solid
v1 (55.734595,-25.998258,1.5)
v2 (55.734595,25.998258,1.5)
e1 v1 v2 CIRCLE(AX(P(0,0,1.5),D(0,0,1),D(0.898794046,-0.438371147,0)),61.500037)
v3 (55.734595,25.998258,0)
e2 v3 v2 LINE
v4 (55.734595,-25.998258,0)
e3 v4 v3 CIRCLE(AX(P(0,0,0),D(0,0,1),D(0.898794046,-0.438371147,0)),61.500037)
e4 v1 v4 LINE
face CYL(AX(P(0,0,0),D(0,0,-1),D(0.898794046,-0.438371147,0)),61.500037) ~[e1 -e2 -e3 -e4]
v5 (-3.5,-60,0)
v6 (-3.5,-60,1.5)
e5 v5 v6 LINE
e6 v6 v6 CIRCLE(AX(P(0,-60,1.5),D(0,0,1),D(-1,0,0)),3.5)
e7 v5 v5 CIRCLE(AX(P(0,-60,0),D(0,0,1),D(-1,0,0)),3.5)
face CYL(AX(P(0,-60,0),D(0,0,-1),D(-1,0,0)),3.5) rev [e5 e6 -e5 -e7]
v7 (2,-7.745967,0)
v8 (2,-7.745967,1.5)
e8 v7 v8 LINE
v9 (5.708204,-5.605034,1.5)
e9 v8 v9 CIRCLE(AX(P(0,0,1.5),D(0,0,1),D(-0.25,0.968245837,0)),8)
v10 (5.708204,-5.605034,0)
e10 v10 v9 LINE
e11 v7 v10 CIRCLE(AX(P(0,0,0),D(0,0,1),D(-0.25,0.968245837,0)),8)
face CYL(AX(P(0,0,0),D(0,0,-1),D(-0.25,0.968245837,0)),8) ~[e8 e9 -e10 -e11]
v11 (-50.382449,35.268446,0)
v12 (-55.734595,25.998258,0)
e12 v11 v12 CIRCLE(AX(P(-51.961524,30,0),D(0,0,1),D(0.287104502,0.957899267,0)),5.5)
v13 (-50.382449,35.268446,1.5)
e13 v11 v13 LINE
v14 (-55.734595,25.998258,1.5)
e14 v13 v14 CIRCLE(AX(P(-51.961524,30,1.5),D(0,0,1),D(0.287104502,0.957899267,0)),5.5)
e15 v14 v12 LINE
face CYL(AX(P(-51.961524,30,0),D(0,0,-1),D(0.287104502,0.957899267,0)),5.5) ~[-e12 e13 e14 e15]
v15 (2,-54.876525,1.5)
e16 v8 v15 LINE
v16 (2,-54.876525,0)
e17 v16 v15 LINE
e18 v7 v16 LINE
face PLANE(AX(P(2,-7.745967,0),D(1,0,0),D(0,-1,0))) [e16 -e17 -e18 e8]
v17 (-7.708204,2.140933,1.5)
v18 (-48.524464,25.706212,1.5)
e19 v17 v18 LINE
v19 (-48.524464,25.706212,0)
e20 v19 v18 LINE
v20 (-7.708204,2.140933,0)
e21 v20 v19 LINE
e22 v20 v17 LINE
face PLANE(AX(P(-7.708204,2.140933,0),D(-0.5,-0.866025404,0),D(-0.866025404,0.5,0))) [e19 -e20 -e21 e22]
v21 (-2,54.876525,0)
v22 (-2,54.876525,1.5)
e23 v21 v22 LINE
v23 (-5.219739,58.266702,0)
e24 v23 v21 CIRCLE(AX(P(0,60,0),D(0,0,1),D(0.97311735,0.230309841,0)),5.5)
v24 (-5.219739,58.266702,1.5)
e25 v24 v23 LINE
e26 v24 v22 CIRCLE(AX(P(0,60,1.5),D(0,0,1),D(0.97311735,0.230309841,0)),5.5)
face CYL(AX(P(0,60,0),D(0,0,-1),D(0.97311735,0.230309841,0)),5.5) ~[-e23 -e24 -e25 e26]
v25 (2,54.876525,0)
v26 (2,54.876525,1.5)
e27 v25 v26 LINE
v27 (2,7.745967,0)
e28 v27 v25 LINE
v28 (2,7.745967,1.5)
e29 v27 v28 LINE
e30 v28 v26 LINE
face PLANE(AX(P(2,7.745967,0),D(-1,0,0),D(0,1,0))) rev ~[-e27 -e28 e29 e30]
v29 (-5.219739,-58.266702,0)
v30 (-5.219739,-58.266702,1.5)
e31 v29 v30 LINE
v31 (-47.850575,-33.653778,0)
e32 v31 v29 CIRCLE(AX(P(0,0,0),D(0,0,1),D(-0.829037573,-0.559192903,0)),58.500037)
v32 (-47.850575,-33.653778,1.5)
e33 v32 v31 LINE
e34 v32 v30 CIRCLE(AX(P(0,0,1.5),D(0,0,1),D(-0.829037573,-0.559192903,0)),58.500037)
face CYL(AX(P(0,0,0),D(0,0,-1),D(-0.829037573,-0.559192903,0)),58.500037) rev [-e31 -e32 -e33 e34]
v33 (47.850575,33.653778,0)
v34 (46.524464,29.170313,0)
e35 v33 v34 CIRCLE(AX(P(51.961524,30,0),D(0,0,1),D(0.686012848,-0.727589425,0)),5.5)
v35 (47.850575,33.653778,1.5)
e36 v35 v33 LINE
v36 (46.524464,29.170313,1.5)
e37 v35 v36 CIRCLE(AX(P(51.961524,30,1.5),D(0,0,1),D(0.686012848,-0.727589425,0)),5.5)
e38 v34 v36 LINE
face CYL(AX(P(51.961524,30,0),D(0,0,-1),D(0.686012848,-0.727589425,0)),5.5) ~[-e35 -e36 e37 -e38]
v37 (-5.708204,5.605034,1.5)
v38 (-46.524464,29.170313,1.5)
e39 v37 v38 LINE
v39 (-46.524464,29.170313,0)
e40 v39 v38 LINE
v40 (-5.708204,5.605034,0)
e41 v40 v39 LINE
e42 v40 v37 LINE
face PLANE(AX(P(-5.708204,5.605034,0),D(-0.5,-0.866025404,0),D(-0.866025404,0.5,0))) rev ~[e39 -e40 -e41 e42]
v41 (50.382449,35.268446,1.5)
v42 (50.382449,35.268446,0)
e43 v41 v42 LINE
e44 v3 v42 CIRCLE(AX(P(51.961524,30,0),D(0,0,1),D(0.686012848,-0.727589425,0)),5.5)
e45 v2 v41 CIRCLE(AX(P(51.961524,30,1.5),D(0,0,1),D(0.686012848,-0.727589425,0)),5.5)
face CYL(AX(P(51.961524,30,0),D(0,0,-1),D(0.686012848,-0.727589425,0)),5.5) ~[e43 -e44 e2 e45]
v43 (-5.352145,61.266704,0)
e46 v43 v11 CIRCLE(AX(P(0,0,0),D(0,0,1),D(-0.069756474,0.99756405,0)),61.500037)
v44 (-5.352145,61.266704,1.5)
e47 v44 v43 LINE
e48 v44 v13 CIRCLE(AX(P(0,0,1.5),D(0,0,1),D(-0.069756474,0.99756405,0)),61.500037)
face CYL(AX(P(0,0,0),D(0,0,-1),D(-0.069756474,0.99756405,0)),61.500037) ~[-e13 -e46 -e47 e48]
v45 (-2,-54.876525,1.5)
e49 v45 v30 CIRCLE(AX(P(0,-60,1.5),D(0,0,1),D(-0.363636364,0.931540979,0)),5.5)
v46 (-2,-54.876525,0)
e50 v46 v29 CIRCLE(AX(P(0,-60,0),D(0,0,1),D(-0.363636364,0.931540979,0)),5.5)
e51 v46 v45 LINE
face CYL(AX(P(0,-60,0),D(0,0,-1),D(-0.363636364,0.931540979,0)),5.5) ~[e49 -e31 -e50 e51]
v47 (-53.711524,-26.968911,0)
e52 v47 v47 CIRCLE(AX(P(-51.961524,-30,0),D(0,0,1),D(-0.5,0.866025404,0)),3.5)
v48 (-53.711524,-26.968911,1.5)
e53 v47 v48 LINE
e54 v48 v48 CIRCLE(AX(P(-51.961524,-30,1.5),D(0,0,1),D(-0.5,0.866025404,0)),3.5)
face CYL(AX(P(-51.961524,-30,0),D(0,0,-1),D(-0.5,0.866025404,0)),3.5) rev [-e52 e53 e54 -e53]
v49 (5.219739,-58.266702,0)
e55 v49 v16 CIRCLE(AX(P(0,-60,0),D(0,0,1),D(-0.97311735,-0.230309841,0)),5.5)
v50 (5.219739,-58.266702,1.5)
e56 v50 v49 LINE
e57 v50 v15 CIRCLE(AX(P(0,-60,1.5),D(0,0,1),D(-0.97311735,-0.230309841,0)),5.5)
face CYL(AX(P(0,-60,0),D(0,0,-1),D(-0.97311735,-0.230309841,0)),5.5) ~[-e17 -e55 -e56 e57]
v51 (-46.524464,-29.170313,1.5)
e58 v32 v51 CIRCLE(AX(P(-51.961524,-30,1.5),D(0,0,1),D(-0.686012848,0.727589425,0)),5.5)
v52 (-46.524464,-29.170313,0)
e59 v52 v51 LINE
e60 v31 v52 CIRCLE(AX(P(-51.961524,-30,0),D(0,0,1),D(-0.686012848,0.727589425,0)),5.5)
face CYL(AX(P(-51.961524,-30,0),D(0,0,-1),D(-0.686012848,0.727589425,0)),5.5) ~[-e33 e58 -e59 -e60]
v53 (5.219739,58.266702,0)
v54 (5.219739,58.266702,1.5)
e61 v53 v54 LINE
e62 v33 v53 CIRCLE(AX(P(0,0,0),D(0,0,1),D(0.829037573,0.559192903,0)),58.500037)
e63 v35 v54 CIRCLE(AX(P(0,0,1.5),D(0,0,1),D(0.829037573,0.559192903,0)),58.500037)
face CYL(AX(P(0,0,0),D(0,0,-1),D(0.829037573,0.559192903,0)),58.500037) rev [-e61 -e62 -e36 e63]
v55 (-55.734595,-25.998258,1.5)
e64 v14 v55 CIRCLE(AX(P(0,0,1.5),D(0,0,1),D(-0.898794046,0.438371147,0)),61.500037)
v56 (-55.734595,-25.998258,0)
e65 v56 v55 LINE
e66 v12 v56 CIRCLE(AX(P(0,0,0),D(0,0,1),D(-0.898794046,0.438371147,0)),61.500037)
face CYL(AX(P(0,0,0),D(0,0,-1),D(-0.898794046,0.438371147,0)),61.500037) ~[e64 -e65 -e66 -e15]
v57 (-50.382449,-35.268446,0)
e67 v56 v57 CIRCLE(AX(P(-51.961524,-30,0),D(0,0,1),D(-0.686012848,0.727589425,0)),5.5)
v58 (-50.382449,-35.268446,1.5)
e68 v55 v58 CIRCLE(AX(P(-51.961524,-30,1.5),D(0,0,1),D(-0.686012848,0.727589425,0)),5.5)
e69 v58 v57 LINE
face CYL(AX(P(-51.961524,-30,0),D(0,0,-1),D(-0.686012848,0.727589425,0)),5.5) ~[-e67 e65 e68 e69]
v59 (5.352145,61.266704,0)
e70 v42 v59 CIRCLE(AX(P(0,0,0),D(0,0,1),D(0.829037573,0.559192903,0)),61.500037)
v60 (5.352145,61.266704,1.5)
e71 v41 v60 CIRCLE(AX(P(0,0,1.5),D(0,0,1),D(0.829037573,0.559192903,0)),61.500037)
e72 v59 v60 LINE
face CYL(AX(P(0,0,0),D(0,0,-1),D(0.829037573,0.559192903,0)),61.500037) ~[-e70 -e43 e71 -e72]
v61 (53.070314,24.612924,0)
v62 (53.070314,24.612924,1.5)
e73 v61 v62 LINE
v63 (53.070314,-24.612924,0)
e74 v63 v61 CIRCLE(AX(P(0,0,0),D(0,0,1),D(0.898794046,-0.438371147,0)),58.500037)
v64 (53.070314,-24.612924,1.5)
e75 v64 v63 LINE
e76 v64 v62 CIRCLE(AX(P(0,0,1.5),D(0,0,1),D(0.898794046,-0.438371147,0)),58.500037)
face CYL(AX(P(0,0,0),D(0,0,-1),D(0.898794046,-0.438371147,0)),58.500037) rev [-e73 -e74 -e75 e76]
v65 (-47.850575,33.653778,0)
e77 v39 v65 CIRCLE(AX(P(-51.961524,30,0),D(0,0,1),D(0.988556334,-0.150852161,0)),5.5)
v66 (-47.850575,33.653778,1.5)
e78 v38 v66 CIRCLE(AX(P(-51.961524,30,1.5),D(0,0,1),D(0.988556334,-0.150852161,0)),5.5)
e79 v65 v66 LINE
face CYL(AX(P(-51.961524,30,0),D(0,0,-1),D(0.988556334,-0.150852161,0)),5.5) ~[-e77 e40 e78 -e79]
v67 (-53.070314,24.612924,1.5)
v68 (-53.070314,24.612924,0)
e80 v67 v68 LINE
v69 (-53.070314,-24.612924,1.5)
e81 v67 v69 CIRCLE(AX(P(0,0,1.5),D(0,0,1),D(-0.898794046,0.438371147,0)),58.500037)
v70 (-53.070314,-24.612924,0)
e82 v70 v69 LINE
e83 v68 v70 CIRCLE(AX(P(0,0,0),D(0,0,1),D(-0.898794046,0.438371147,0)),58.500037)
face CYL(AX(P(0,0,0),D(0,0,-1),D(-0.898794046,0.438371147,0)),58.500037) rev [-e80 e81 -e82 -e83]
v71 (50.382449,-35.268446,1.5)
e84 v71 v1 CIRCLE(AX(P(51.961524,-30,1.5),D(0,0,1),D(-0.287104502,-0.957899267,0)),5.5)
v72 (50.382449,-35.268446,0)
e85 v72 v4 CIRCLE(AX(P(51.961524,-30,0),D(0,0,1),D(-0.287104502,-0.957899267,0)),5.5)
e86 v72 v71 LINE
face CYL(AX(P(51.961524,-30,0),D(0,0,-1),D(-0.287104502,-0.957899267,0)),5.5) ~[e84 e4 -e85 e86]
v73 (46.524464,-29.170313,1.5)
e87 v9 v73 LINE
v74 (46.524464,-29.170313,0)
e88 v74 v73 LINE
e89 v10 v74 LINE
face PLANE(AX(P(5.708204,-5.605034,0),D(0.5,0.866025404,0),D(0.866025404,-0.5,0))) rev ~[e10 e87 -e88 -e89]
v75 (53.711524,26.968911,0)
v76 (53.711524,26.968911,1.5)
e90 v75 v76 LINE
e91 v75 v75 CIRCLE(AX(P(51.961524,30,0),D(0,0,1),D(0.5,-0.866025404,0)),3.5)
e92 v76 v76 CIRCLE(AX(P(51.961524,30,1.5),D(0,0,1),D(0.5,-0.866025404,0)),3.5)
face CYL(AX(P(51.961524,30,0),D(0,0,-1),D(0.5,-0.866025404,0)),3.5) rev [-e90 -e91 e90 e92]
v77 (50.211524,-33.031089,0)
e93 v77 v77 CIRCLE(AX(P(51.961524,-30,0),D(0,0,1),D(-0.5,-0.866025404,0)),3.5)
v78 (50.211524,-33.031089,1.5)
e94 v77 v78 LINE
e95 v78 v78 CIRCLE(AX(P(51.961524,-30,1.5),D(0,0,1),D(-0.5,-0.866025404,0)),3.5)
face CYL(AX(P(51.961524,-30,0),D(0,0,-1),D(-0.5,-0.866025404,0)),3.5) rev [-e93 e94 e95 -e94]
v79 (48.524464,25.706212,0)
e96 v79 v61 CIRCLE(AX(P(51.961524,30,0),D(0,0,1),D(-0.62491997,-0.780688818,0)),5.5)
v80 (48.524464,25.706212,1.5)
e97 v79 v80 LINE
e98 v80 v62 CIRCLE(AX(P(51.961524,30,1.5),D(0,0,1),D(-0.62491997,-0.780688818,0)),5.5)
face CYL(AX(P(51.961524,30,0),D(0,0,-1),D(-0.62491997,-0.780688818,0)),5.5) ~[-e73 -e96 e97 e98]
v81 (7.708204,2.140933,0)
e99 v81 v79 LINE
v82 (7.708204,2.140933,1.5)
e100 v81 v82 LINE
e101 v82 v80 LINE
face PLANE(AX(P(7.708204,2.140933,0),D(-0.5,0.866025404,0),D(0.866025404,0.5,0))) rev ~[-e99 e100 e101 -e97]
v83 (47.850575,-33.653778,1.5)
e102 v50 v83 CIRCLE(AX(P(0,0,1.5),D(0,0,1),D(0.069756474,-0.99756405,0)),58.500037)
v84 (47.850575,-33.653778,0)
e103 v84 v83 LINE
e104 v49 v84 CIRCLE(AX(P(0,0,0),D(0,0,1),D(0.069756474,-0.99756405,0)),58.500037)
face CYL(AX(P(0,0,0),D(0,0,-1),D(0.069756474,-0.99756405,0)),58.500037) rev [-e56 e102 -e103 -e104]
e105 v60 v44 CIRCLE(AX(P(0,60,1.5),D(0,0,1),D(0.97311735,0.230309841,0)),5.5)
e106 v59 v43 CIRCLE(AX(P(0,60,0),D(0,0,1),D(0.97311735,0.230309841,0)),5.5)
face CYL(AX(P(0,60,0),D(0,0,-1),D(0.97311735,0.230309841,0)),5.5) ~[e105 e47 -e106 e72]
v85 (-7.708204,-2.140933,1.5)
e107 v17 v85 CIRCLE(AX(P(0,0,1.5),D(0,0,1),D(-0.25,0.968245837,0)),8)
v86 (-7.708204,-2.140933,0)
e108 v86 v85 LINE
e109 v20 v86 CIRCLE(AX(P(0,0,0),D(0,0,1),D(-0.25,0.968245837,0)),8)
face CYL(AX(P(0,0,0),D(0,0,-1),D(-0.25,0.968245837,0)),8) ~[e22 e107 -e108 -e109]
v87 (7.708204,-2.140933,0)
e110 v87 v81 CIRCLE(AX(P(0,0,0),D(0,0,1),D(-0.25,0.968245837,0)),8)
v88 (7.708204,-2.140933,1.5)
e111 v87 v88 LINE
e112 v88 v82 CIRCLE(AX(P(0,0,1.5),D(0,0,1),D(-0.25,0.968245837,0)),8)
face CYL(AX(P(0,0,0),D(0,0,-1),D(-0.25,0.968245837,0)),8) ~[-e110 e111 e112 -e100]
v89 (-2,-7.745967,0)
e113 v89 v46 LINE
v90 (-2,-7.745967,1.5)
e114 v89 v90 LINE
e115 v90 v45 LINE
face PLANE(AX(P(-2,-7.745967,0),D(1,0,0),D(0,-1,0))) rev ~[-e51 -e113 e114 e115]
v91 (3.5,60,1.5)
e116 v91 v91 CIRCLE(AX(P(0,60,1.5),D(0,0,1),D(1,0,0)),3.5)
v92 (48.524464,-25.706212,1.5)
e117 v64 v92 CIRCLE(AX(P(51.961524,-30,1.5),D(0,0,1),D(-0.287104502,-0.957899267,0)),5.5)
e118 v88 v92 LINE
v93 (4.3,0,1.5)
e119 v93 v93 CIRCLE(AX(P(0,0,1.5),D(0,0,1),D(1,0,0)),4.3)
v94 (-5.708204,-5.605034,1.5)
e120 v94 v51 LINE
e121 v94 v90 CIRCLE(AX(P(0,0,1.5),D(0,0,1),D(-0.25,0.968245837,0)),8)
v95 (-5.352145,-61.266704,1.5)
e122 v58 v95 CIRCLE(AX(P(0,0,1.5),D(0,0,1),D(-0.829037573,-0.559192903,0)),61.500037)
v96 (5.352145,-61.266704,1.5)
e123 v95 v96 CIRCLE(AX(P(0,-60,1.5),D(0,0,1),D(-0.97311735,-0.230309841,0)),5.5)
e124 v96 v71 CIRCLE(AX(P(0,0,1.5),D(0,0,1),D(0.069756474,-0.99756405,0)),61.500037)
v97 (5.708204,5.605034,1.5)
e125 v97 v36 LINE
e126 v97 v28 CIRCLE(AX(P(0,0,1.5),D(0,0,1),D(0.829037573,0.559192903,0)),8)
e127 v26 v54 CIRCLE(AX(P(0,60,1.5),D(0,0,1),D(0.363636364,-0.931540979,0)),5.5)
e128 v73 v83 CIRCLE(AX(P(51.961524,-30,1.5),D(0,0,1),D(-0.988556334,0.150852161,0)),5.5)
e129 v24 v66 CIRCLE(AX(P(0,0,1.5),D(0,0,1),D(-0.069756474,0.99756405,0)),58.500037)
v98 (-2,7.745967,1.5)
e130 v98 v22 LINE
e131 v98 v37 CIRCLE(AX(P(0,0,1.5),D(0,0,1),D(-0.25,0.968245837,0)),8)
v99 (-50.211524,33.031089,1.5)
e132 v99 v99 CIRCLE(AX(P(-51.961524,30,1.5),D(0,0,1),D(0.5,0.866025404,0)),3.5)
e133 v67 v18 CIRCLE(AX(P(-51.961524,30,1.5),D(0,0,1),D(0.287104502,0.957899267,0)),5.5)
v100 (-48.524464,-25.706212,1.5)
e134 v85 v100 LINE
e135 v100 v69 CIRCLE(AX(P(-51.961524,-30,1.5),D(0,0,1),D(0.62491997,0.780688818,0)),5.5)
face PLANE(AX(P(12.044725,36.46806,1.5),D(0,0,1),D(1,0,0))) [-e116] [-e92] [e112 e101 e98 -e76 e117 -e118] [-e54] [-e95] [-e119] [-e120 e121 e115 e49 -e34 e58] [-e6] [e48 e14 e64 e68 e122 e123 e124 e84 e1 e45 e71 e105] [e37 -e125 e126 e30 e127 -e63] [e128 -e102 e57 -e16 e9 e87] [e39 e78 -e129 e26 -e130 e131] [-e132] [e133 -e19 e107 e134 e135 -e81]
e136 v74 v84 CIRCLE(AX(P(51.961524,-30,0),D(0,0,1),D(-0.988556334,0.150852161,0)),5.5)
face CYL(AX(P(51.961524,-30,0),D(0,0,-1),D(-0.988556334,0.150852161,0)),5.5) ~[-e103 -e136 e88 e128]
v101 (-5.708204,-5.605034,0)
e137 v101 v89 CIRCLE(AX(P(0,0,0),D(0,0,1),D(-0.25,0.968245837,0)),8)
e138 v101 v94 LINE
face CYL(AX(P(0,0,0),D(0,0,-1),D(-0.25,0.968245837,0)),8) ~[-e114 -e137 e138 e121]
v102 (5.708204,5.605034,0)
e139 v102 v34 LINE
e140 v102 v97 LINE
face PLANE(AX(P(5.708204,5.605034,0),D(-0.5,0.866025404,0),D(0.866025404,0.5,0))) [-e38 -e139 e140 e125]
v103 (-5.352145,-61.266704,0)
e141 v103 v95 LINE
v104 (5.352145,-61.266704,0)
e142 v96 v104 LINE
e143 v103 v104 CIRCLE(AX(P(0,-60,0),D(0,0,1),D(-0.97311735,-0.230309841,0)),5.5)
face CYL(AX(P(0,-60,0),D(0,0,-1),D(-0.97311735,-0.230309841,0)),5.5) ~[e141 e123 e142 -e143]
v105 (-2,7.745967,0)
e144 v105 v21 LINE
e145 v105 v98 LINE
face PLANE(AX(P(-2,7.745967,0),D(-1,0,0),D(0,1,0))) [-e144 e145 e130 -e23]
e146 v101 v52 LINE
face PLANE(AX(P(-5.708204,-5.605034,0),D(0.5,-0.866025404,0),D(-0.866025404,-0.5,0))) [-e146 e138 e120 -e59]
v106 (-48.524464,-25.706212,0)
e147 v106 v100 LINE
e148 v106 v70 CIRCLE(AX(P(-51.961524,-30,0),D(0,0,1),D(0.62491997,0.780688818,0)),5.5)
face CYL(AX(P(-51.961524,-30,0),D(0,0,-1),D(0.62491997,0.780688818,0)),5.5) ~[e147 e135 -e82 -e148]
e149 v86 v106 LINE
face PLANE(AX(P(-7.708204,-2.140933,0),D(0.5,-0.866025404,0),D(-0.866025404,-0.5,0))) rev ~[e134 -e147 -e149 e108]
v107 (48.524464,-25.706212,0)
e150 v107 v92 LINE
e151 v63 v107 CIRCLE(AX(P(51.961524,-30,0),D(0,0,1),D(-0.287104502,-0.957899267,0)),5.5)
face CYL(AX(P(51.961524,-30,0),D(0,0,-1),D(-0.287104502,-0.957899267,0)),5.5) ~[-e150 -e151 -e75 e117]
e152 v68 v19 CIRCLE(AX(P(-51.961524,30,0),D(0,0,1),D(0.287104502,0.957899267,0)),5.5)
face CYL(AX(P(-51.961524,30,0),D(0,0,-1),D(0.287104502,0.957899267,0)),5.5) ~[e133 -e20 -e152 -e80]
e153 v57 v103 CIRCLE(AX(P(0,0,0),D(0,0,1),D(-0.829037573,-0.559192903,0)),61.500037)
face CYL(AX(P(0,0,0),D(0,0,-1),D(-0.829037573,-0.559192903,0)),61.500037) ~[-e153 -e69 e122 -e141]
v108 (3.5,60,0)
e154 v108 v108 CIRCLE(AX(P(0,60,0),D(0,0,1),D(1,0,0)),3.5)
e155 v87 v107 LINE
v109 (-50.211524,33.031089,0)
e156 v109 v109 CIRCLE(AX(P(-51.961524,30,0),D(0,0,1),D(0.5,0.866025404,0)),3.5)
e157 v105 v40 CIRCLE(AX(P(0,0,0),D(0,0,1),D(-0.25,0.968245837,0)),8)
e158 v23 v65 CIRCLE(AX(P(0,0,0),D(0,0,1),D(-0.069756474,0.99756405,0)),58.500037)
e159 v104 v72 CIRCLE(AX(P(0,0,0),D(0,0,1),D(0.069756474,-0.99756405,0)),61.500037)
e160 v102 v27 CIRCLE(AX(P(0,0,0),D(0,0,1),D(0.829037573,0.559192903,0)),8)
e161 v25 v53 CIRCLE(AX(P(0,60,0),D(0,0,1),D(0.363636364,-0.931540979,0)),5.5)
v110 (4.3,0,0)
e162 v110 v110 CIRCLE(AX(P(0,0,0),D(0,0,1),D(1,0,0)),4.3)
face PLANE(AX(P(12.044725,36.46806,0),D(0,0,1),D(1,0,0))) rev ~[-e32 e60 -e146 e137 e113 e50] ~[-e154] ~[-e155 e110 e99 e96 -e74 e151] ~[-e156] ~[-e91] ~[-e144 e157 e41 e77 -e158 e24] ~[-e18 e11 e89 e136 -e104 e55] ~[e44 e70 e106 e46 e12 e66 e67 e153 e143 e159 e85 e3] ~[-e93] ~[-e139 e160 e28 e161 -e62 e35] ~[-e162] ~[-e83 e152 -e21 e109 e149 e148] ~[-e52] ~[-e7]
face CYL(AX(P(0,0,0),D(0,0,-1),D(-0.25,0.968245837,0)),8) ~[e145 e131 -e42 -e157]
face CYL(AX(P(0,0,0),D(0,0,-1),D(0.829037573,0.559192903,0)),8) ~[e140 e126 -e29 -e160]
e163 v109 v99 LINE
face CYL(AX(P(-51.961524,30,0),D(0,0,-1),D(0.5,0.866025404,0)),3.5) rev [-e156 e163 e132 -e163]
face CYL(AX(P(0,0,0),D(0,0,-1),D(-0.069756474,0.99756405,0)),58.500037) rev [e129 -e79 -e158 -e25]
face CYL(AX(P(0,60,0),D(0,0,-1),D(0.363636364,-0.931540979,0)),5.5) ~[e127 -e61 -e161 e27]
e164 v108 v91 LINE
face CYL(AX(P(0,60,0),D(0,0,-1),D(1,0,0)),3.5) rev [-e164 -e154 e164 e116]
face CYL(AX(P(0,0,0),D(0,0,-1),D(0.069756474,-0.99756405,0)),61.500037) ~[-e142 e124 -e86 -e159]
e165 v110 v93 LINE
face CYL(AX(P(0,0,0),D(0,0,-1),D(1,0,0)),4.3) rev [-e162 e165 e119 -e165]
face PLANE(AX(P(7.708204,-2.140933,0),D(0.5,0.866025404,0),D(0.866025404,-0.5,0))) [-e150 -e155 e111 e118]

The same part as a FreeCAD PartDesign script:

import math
import FreeCAD as App
import Part
import Sketcher
from FreeCAD import Vector
Q = App.Units.Quantity

doc = App.newDocument("Part")
params = doc.addObject("Spreadsheet::Sheet", "Params")
for row, (alias, value) in enumerate([
    ("sketch1_diameter", "7 mm"),
    ("sketch1_radius", "8 mm"),
    ("sketch1_diameter2", "8.6 mm"),
    ("sketch1_radius2", "5.5 mm"),
    ("sketch1_length", "3 mm"),
    ("pad1_length", "1.5 mm"),
], start=1):
    params.set(f"A{row}", alias)
    params.set(f"B{row}", "=" + value)
    params.setAlias(f"B{row}", alias)

body = doc.addObject("PartDesign::Body", "Body")

sketch1 = body.newObject("Sketcher::SketchObject", "Sketch")
sketch1.AttachmentSupport = (doc.getObject("XY_Plane"), [""])
sketch1.MapMode = "FlatFace"
sketch1.addGeometry(Part.ArcOfCircle(Part.Circle(Vector(0, 0, 0), Vector(0, 0, 1), 8), math.radians(34), math.radians(75.522488)), False)
sketch1.addGeometry(Part.LineSegment(Vector(2, 7.745967, 0), Vector(2, 54.876525, 0)), False)
sketch1.addGeometry(Part.ArcOfCircle(Part.Circle(Vector(0, 60, 0), Vector(0, 0, 1), 5.5), math.radians(-68.676314), math.radians(-18.36957)), False)
sketch1.addGeometry(Part.ArcOfCircle(Part.Circle(Vector(0, 0, 0), Vector(0, 0, 1), 58.500037), math.radians(34), math.radians(84.880904)), False)
sketch1.addGeometry(Part.LineSegment(Vector(48.498728, 32.712805, 0), Vector(50.985841, 34.390384, 0)), False)
sketch1.addGeometry(Part.ArcOfCircle(Part.Circle(Vector(0, 0, 0), Vector(0, 0, 1), 61.500037), math.radians(34), math.radians(85.007422)), False)
sketch1.addGeometry(Part.ArcOfCircle(Part.Circle(Vector(0, 60, 0), Vector(0, 0, 1), 5.5), math.radians(13.315314), math.radians(248.676314)), False)
sketch1.addGeometry(Part.LineSegment(Vector(-2, 54.876525, 0), Vector(-2, 7.745967, 0)), False)
sketch1.addGeometry(Part.ArcOfCircle(Part.Circle(Vector(0, 0, 0), Vector(0, 0, 1), 8), math.radians(104.477512), math.radians(394)), False)
sketch1.addGeometry(Part.Circle(Vector(0, 0, 0), Vector(0, 0, 1), 4.3), False)
sketch1.addGeometry(Part.Circle(Vector(0, 60, 0), Vector(0, 0, 1), 3.5), False)
sketch1.addConstraint(Sketcher.Constraint("Coincident", 0, 2, 1, 1))
sketch1.addConstraint(Sketcher.Constraint("Coincident", 1, 2, 2, 1))
sketch1.addConstraint(Sketcher.Constraint("Coincident", 2, 2, 3, 2))
sketch1.addConstraint(Sketcher.Constraint("Coincident", 3, 1, 4, 1))
sketch1.addConstraint(Sketcher.Constraint("Coincident", 4, 2, 5, 1))
sketch1.addConstraint(Sketcher.Constraint("Coincident", 5, 2, 6, 1))
sketch1.addConstraint(Sketcher.Constraint("Coincident", 6, 2, 7, 1))
sketch1.addConstraint(Sketcher.Constraint("Coincident", 7, 2, 8, 1))
sketch1.addConstraint(Sketcher.Constraint("Tangent", 8, 2, 0, 1))
sketch1.addConstraint(Sketcher.Constraint("Vertical", 1))
sketch1.addConstraint(Sketcher.Constraint("Vertical", 7))
sketch1.addConstraint(Sketcher.Constraint("Coincident", 0, 3, -1, 1))
sketch1.addConstraint(Sketcher.Constraint("Coincident", 3, 3, -1, 1))
sketch1.addConstraint(Sketcher.Constraint("Coincident", 5, 3, -1, 1))
sketch1.addConstraint(Sketcher.Constraint("Coincident", 9, 3, -1, 1))
sketch1.addConstraint(Sketcher.Constraint("Coincident", 6, 3, 2, 3))
sketch1.addConstraint(Sketcher.Constraint("Coincident", 10, 3, 2, 3))
sketch1.addConstraint(Sketcher.Constraint("Equal", 2, 6))
sketch1.addConstraint(Sketcher.Constraint("Equal", 0, 8))
sketch1.addConstraint(Sketcher.Constraint("Symmetric", 1, 2, 6, 2, -2))
sketch1.addConstraint(Sketcher.Constraint("Diameter", 10, Q("7 mm")))
sketch1.addConstraint(Sketcher.Constraint("Radius", 0, Q("8 mm")))
sketch1.addConstraint(Sketcher.Constraint("Diameter", 9, Q("8.6 mm")))
sketch1.addConstraint(Sketcher.Constraint("Radius", 2, Q("5.5 mm")))
sketch1.addConstraint(Sketcher.Constraint("Angle", 4, Q("34 deg")))
sketch1.addConstraint(Sketcher.Constraint("Distance", 4, Q("3 mm")))
sketch1.addConstraint(Sketcher.Constraint("DistanceY", -1, 1, 2, 3, Q("60 mm")))
sketch1.addConstraint(Sketcher.Constraint("DistanceX", -1, 1, 0, 2, Q("2 mm")))
sketch1.addConstraint(Sketcher.Constraint("DistanceY", 2, 2, 5, 2, Q("3.000002 mm")))
sketch1.addConstraint(Sketcher.Constraint("DistanceX", -1, 1, 8, 2, Q("6.632301 mm")))
sketch1.addConstraint(Sketcher.Constraint("DistanceX", 2, 2, 4, 2, Q("45.766102 mm")))
sketch1.setExpression("Constraints[20]", "Params.sketch1_diameter")
sketch1.setExpression("Constraints[21]", "Params.sketch1_radius")
sketch1.setExpression("Constraints[22]", "Params.sketch1_diameter2")
sketch1.setExpression("Constraints[23]", "Params.sketch1_radius2")
sketch1.setExpression("Constraints[25]", "Params.sketch1_length")
pad1 = body.newObject("PartDesign::Pad", "Pad")
pad1.Profile = sketch1
pad1.setExpression("Length", "Params.pad1_length")
doc.recompute()

polarpattern = body.newObject("PartDesign::PolarPattern", "PolarPattern")
polarpattern.Originals = [pad1]
polarpattern.Axis = (doc.getObject("Z_Axis"), [""])
polarpattern.Angle = 360
polarpattern.Occurrences = 6
body.Tip = polarpattern

doc.recompute()
